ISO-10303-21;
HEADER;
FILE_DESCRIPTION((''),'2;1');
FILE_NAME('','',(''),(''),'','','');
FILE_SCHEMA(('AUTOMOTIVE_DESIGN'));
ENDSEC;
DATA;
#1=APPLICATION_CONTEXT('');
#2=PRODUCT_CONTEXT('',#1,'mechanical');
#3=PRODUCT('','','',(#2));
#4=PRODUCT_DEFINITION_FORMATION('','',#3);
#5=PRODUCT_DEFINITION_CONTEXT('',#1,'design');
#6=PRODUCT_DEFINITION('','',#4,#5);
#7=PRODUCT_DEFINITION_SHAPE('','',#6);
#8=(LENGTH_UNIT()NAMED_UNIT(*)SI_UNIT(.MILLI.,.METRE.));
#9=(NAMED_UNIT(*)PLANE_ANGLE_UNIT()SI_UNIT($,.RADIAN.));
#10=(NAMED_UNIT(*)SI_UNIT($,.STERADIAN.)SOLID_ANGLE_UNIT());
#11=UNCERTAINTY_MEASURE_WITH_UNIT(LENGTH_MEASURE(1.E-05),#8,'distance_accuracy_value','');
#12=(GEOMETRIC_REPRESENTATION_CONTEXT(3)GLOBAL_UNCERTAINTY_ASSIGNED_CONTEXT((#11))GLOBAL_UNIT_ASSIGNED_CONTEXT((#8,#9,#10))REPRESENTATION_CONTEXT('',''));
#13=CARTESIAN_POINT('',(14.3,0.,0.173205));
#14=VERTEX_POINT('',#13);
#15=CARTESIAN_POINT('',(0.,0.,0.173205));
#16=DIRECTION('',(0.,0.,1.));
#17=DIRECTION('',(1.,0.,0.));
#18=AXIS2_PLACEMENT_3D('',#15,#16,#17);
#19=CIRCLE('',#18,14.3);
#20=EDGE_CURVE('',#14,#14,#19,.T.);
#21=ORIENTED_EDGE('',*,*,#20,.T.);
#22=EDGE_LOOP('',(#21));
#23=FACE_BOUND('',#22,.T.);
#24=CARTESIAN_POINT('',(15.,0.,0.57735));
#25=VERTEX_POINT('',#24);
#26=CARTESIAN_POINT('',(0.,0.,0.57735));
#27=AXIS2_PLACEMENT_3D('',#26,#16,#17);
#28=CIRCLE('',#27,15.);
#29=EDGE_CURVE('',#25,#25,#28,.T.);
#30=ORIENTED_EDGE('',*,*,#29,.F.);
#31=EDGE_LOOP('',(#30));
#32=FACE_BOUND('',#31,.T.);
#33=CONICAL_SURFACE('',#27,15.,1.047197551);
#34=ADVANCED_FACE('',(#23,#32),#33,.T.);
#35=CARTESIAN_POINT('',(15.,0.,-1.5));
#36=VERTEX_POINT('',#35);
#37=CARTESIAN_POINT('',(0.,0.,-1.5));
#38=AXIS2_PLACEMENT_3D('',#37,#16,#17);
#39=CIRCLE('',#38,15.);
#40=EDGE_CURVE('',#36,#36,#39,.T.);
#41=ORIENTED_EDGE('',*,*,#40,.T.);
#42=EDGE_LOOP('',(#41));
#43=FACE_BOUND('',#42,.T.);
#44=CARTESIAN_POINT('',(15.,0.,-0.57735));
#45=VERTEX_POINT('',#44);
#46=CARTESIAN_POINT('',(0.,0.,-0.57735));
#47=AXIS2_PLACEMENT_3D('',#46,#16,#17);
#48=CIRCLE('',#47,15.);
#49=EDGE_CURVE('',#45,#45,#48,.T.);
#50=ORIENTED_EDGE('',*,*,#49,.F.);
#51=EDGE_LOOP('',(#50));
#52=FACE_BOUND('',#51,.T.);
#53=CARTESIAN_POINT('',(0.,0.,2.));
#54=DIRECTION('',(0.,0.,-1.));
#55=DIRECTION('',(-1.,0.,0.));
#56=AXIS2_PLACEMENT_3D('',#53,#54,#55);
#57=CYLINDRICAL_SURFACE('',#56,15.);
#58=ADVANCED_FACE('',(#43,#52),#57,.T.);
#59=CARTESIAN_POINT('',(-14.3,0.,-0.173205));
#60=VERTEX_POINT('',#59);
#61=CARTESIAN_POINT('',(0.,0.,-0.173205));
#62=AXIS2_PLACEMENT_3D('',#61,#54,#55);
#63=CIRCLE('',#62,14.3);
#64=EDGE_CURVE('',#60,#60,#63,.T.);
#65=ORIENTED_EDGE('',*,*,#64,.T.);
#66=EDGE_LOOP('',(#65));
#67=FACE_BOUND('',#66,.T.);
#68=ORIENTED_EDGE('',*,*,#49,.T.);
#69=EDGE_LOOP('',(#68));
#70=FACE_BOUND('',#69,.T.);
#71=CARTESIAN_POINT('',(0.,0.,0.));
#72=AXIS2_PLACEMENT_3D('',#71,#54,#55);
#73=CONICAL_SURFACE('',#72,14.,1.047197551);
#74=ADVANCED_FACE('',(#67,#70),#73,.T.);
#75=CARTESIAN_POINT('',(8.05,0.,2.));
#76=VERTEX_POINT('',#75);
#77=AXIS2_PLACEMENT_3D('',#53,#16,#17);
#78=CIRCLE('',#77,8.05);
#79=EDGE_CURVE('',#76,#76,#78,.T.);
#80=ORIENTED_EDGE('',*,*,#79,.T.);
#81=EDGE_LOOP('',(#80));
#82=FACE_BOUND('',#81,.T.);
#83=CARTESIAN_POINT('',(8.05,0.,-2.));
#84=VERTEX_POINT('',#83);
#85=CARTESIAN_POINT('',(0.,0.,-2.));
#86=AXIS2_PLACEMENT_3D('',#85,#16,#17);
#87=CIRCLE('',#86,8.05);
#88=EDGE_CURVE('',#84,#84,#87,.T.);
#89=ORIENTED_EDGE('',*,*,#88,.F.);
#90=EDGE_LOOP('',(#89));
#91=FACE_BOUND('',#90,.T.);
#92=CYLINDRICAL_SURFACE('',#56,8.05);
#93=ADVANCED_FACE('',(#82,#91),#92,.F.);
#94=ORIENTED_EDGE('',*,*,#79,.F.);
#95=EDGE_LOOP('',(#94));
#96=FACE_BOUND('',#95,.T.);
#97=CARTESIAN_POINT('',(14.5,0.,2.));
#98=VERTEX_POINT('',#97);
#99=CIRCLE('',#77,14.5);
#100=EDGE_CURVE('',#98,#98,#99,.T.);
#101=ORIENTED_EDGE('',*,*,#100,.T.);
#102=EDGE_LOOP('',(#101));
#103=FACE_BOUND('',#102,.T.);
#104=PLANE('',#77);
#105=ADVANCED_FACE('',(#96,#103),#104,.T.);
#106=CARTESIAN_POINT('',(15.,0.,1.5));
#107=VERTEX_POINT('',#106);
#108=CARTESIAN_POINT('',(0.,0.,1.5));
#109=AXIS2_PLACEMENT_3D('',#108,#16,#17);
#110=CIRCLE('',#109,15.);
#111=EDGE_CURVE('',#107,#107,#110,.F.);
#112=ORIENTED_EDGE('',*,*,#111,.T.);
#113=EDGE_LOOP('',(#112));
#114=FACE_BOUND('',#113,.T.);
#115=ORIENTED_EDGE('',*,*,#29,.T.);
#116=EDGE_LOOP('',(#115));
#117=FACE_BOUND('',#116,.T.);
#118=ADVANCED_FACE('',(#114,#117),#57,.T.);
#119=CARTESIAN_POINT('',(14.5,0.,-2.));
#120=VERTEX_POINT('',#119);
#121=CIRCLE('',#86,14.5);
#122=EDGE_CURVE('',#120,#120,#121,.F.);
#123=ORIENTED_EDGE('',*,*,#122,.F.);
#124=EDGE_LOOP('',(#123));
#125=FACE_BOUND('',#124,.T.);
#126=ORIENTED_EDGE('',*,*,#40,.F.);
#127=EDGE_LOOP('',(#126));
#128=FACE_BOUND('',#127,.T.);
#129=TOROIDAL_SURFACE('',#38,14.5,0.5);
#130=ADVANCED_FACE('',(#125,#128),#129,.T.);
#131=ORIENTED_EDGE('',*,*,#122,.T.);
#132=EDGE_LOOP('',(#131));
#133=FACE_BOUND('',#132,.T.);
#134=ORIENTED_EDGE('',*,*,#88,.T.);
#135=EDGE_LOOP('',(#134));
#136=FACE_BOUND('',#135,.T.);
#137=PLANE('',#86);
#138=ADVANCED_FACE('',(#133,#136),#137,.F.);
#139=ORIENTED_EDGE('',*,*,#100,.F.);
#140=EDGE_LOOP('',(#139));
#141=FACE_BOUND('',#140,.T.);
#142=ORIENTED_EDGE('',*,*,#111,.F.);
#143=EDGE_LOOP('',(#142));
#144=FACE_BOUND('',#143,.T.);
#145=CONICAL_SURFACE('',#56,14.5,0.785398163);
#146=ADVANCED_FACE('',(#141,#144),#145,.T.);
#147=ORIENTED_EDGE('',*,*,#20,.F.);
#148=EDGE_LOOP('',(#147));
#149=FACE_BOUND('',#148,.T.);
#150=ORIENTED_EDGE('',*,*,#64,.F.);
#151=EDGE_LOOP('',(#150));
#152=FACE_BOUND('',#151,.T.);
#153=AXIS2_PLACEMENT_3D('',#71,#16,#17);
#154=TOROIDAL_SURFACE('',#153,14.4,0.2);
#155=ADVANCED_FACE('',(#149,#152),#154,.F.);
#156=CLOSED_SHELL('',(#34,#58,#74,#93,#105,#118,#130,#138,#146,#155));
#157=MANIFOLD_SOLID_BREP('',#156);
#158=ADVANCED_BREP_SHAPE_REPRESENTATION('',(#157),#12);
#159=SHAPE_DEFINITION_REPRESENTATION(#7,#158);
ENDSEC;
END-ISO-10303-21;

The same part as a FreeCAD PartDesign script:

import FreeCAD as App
import Part
import Sketcher

V = App.Vector
Q = App.Units.Quantity


def edges_at(feature, points):
    """Names of the edges that pass closest to the given points."""
    edges = feature.Shape.Edges
    near = lambda p: min(range(len(edges)), key=lambda i: edges[i].distToShape(Part.Vertex(*p))[0])
    return sorted({f"Edge{near(p) + 1}" for p in points})

doc = App.newDocument("Part")
body = doc.addObject("PartDesign::Body", "Body")

# Sketch on XY plane
sketch1 = body.newObject("Sketcher::SketchObject", "Sketch")
sketch1.AttachmentSupport = (doc.getObject("XY_Plane"), [""])
sketch1.MapMode = "FlatFace"
sketch1.addGeometry([
    Part.Circle(V(0, 0, 0), V(0, 0, 1), 15),
    Part.Circle(V(0, 0, 0), V(0, 0, 1), 8.05),
], False)
sketch1.addConstraint([
    Sketcher.Constraint("Coincident", 0, 3, -1, 1),
    Sketcher.Constraint("Coincident", 1, 3, -1, 1),
    Sketcher.Constraint("Diameter", 0, 30.0),
    Sketcher.Constraint("Diameter", 1, 16.1),
])
pad1 = body.newObject("PartDesign::Pad", "Pad")
pad1.Profile = sketch1
pad1.Length = 4
pad1.Midplane = True

# Sketch on YZ plane
sketch2 = body.newObject("Sketcher::SketchObject", "Sketch001")
sketch2.AttachmentSupport = (doc.getObject("YZ_Plane"), [""])
sketch2.MapMode = "FlatFace"
sketch2.addGeometry([
    Part.LineSegment(V(15, -0.57735, 0), V(15, 0.57735, 0)),
    Part.LineSegment(V(15, 0.57735, 0), V(14, 0, 0)),
    Part.LineSegment(V(14, 0, 0), V(15, -0.57735, 0)),
], False)
sketch2.addConstraint([
    Sketcher.Constraint("Coincident", 0, 2, 1, 1),
    Sketcher.Constraint("Coincident", 1, 2, 2, 1),
    Sketcher.Constraint("Coincident", 2, 2, 0, 1),
    Sketcher.Constraint("Vertical", 0),
    Sketcher.Constraint("PointOnObject", 1, 2, -1),
    Sketcher.Constraint("Equal", 1, 2),
    Sketcher.Constraint("Angle", 1, Q("-150 deg")),
    Sketcher.Constraint("DistanceX", -1, 1, 0, 2, 15.0),
    Sketcher.Constraint("DistanceX", -1, 1, 1, 2, 14.0),
])
groove = body.newObject("PartDesign::Groove", "Groove")
groove.Profile = sketch2
groove.ReferenceAxis = (sketch2, ["V_Axis"])
groove.Angle = 360
doc.recompute()

fillet = body.newObject("PartDesign::Fillet", "Fillet")
fillet.Base = (groove, edges_at(groove, [(-14, 0, 0)]))
fillet.Radius = 0.2
doc.recompute()

chamfer = body.newObject("PartDesign::Chamfer", "Chamfer")
chamfer.Base = (fillet, edges_at(fillet, [(-15, 0, 2)]))
chamfer.Size = 0.5
doc.recompute()

fillet2 = body.newObject("PartDesign::Fillet", "Fillet001")
fillet2.Base = (chamfer, edges_at(chamfer, [(-15, 0, -2)]))
fillet2.Radius = 0.5

doc.recompute()
